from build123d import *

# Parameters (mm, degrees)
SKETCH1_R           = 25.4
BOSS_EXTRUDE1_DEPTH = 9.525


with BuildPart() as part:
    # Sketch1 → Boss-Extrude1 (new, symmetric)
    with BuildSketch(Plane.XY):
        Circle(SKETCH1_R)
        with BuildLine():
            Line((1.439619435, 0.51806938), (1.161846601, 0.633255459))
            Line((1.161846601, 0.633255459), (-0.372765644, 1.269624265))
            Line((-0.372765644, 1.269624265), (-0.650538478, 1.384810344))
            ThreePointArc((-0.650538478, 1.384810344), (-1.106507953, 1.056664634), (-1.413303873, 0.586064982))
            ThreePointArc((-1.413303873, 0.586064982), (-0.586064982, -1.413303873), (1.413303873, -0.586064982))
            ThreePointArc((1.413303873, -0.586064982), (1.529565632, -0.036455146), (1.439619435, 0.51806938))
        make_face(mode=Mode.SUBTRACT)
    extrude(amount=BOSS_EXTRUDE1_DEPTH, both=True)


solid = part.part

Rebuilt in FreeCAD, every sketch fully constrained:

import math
import FreeCAD as App
import Part
import Sketcher
Q = App.Units.Quantity

doc = App.newDocument("Part")
body = doc.addObject("PartDesign::Body", "Body")

# Sketch on XY plane
sketch1 = body.newObject("Sketcher::SketchObject", "Sketch")
sketch1.AttachmentSupport = (doc.getObject("XY_Plane"), [""])
sketch1.MapMode = "FlatFace"
sketch1.addGeometry([
    Part.Circle(App.Vector(0, 0, 0), App.Vector(0, 0, 1), 25.4),  # 0
    Part.LineSegment(App.Vector(1.16, 0.63, 0), App.Vector(1.44, 0.52, 0)),  # 1
    Part.ArcOfCircle(Part.Circle(App.Vector(0, 0, 0), App.Vector(0, 0, 1), 1.53), math.radians(-23), math.radians(20)),  # 2
    Part.ArcOfCircle(Part.Circle(App.Vector(0, 0, 0), App.Vector(0, 0, 1), 1.53), math.radians(157), math.radians(337)),  # 3
    Part.ArcOfCircle(Part.Circle(App.Vector(0, 0, 0), App.Vector(0, 0, 1), 1.53), math.radians(115), math.radians(157)),  # 4
    Part.LineSegment(App.Vector(-0.65, 1.38, 0), App.Vector(-0.37, 1.27, 0)),  # 5
    Part.LineSegment(App.Vector(-0.37, 1.27, 0), App.Vector(1.16, 0.63, 0)),  # 6
], False)
sketch1.addConstraint([
    Sketcher.Constraint("Coincident", 1, 2, 2, 2),
    Sketcher.Constraint("Tangent", 2, 1, 3, 2),
    Sketcher.Constraint("Tangent", 3, 1, 4, 2),
    Sketcher.Constraint("Coincident", 4, 1, 5, 1),
    Sketcher.Constraint("Coincident", 5, 2, 6, 1),
    Sketcher.Constraint("Coincident", 6, 2, 1, 1),
    Sketcher.Constraint("Coincident", 0, 3, -1, 1),
    Sketcher.Constraint("Coincident", 2, 3, -1, 1),
    Sketcher.Constraint("Equal", 2, 3),
    Sketcher.Constraint("Equal", 3, 4),
    Sketcher.Constraint("Parallel", 1, 5),
    Sketcher.Constraint("Parallel", 5, 6),
    Sketcher.Constraint("Equal", 1, 5),
    Sketcher.Constraint("Diameter", 0, Q("2 in")),
    Sketcher.Constraint("Radius", 2, 1.53),
    Sketcher.Constraint("DistanceX", 6, 2, 2, 1, Q("0.0098999 in")),
    Sketcher.Constraint("Distance", 1, 0.300708),
    Sketcher.Constraint("DistanceX", -1, 1, 1, 2, 1.439619),
    Sketcher.Constraint("DistanceX", 4, 1, -1, 1, 0.650538),
    Sketcher.Constraint("DistanceX", 3, 1, 5, 2, 1.040538),
])
pad1 = body.newObject("PartDesign::Pad", "Pad")
pad1.Profile = sketch1
pad1.Length = Q("0.75 in")
pad1.Midplane = True

doc.recompute()
